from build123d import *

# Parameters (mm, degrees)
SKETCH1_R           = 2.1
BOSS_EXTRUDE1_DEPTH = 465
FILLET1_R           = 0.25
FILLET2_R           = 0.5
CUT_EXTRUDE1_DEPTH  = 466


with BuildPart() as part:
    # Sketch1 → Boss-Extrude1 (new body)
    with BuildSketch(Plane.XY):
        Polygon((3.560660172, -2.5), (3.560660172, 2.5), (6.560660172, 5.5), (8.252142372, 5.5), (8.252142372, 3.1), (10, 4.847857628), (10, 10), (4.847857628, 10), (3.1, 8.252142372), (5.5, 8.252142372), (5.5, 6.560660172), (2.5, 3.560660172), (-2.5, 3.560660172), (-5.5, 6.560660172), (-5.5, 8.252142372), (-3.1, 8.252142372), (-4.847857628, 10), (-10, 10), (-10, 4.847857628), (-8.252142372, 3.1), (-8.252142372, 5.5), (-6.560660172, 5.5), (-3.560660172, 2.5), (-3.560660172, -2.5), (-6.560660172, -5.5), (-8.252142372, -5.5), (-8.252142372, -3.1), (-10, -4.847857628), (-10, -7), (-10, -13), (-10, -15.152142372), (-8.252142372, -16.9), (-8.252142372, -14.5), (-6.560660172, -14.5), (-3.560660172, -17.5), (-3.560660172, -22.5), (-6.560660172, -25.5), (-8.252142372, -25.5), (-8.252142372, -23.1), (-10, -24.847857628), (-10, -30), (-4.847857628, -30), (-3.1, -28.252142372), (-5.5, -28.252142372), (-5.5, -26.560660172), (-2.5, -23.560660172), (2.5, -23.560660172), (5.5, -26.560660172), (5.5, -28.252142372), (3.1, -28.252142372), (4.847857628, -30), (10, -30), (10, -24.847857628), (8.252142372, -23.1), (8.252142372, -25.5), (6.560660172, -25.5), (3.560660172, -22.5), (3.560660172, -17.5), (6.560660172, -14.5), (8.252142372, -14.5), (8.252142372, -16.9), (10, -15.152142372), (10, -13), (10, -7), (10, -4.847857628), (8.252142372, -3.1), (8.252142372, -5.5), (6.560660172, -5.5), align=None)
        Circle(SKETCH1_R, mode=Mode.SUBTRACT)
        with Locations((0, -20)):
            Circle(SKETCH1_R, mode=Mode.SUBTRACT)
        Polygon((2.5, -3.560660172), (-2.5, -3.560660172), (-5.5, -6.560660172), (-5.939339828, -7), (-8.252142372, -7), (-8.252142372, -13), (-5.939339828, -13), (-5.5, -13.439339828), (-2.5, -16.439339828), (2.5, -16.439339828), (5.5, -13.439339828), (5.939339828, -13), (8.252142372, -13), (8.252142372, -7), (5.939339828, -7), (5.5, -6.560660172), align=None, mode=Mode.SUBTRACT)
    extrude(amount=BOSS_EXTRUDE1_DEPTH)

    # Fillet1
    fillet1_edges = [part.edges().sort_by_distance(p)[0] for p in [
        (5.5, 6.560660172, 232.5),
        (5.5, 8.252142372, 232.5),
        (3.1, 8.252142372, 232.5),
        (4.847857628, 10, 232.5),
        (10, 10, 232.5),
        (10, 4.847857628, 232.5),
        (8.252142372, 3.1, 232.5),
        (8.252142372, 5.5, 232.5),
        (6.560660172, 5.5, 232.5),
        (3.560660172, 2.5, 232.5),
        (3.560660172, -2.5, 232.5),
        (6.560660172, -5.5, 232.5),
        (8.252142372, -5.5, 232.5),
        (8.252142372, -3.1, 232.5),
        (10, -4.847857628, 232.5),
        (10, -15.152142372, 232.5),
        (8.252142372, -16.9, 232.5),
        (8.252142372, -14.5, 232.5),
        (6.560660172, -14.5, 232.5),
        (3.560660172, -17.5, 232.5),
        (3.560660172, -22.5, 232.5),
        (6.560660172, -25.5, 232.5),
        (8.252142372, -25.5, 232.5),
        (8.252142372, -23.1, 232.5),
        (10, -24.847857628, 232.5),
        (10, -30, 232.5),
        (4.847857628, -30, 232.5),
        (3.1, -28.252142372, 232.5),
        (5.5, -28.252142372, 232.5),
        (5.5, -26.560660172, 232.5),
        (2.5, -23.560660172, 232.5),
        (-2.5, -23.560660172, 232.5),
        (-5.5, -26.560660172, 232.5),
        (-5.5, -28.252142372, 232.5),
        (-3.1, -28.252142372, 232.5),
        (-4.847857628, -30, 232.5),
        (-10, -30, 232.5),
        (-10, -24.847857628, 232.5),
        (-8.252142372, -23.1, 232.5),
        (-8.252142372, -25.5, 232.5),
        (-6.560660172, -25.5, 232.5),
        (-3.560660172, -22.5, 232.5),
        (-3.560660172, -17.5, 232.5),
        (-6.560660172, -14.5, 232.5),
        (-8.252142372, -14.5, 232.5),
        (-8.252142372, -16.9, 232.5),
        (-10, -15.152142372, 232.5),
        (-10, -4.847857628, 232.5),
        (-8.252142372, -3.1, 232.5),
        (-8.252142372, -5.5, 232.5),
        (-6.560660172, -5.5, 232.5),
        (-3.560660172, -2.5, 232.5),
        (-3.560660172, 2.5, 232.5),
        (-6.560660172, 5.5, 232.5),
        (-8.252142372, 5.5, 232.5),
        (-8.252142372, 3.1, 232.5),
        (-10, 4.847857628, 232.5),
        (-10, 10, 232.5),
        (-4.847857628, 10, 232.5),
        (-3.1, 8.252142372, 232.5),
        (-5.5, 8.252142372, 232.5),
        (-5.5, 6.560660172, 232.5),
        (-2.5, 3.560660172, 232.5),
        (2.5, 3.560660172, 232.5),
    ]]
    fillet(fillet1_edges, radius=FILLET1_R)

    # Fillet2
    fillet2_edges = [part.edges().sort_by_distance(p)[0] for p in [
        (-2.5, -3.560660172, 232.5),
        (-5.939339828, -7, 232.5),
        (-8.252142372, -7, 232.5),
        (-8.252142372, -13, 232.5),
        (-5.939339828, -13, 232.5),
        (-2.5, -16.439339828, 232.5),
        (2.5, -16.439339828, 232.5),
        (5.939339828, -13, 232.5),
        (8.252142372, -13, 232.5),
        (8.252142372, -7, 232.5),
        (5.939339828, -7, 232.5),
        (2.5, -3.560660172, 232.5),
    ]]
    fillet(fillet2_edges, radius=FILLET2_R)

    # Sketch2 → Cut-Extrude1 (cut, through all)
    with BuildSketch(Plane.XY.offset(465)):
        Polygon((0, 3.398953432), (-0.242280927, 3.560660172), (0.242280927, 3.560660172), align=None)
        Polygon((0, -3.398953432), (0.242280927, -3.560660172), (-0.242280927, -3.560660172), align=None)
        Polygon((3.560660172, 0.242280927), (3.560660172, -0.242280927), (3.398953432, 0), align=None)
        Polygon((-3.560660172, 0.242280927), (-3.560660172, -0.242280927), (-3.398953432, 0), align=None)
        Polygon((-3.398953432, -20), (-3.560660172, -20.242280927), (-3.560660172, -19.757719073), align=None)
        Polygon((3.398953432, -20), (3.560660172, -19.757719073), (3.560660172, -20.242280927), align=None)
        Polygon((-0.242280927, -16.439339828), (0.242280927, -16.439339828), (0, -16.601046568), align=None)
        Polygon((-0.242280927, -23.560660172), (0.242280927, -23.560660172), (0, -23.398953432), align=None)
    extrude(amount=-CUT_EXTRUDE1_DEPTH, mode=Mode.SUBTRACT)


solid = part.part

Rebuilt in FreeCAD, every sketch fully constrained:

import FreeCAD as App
import Part
import Sketcher

V = App.Vector
Q = App.Units.Quantity


def edges_at(feature, points):
    """Names of the edges that pass closest to the given points."""
    edges = feature.Shape.Edges
    near = lambda p: min(range(len(edges)), key=lambda i: edges[i].distToShape(Part.Vertex(*p))[0])
    return sorted({f"Edge{near(p) + 1}" for p in points})

doc = App.newDocument("Part")
body = doc.addObject("PartDesign::Body", "Body")

# Sketch on XY plane
sketch1 = body.newObject("Sketcher::SketchObject", "Sketch")
sketch1.AttachmentSupport = (doc.getObject("XY_Plane"), [""])
sketch1.MapMode = "FlatFace"
sketch1.addGeometry([
    Part.LineSegment(V(3.56066, -2.5, 0), V(3.56066, 2.5, 0)),  # 0
    Part.LineSegment(V(3.56066, 2.5, 0), V(6.56066, 5.5, 0)),  # 1
    Part.LineSegment(V(6.56066, 5.5, 0), V(8.252142, 5.5, 0)),  # 2
    Part.LineSegment(V(8.252142, 5.5, 0), V(8.252142, 3.1, 0)),  # 3
    Part.LineSegment(V(8.252142, 3.1, 0), V(10, 4.847858, 0)),  # 4
    Part.LineSegment(V(10, 4.847858, 0), V(10, 10, 0)),  # 5
    Part.LineSegment(V(10, 10, 0), V(4.847858, 10, 0)),  # 6
    Part.LineSegment(V(4.847858, 10, 0), V(3.1, 8.252142, 0)),  # 7
    Part.LineSegment(V(3.1, 8.252142, 0), V(5.5, 8.252142, 0)),  # 8
    Part.LineSegment(V(5.5, 8.252142, 0), V(5.5, 6.56066, 0)),  # 9
    Part.LineSegment(V(5.5, 6.56066, 0), V(2.5, 3.56066, 0)),  # 10
    Part.LineSegment(V(2.5, 3.56066, 0), V(-2.5, 3.56066, 0)),  # 11
    Part.LineSegment(V(-2.5, 3.56066, 0), V(-5.5, 6.56066, 0)),  # 12
    Part.LineSegment(V(-5.5, 6.56066, 0), V(-5.5, 8.252142, 0)),  # 13
    Part.LineSegment(V(-5.5, 8.252142, 0), V(-3.1, 8.252142, 0)),  # 14
    Part.LineSegment(V(-3.1, 8.252142, 0), V(-4.847858, 10, 0)),  # 15
    Part.LineSegment(V(-4.847858, 10, 0), V(-10, 10, 0)),  # 16
    Part.LineSegment(V(-10, 10, 0), V(-10, 4.847858, 0)),  # 17
    Part.LineSegment(V(-10, 4.847858, 0), V(-8.252142, 3.1, 0)),  # 18
    Part.LineSegment(V(-8.252142, 3.1, 0), V(-8.252142, 5.5, 0)),  # 19
    Part.LineSegment(V(-8.252142, 5.5, 0), V(-6.56066, 5.5, 0)),  # 20
    Part.LineSegment(V(-6.56066, 5.5, 0), V(-3.56066, 2.5, 0)),  # 21
    Part.LineSegment(V(-3.56066, 2.5, 0), V(-3.56066, -2.5, 0)),  # 22
    Part.LineSegment(V(-3.56066, -2.5, 0), V(-6.56066, -5.5, 0)),  # 23
    Part.LineSegment(V(-6.56066, -5.5, 0), V(-8.252142, -5.5, 0)),  # 24
    Part.LineSegment(V(-8.252142, -5.5, 0), V(-8.252142, -3.1, 0)),  # 25
    Part.LineSegment(V(-8.252142, -3.1, 0), V(-10, -4.847858, 0)),  # 26
    Part.LineSegment(V(-10, -4.847858, 0), V(-10, -15.152142, 0)),  # 27
    Part.LineSegment(V(-10, -15.152142, 0), V(-8.252142, -16.9, 0)),  # 28
    Part.LineSegment(V(-8.252142, -16.9, 0), V(-8.252142, -14.5, 0)),  # 29
    Part.LineSegment(V(-8.252142, -14.5, 0), V(-6.56066, -14.5, 0)),  # 30
    Part.LineSegment(V(-6.56066, -14.5, 0), V(-3.56066, -17.5, 0)),  # 31
    Part.LineSegment(V(-3.56066, -17.5, 0), V(-3.56066, -22.5, 0)),  # 32
    Part.LineSegment(V(-3.56066, -22.5, 0), V(-6.56066, -25.5, 0)),  # 33
    Part.LineSegment(V(-6.56066, -25.5, 0), V(-8.252142, -25.5, 0)),  # 34
    Part.LineSegment(V(-8.252142, -25.5, 0), V(-8.252142, -23.1, 0)),  # 35
    Part.LineSegment(V(-8.252142, -23.1, 0), V(-10, -24.847858, 0)),  # 36
    Part.LineSegment(V(-10, -24.847858, 0), V(-10, -30, 0)),  # 37
    Part.LineSegment(V(-10, -30, 0), V(-4.847858, -30, 0)),  # 38
    Part.LineSegment(V(-4.847858, -30, 0), V(-3.1, -28.252142, 0)),  # 39
    Part.LineSegment(V(-3.1, -28.252142, 0), V(-5.5, -28.252142, 0)),  # 40
    Part.LineSegment(V(-5.5, -28.252142, 0), V(-5.5, -26.56066, 0)),  # 41
    Part.LineSegment(V(-5.5, -26.56066, 0), V(-2.5, -23.56066, 0)),  # 42
    Part.LineSegment(V(-2.5, -23.56066, 0), V(2.5, -23.56066, 0)),  # 43
    Part.LineSegment(V(2.5, -23.56066, 0), V(5.5, -26.56066, 0)),  # 44
    Part.LineSegment(V(5.5, -26.56066, 0), V(5.5, -28.252142, 0)),  # 45
    Part.LineSegment(V(5.5, -28.252142, 0), V(3.1, -28.252142, 0)),  # 46
    Part.LineSegment(V(3.1, -28.252142, 0), V(4.847858, -30, 0)),  # 47
    Part.LineSegment(V(4.847858, -30, 0), V(10, -30, 0)),  # 48
    Part.LineSegment(V(10, -30, 0), V(10, -24.847858, 0)),  # 49
    Part.LineSegment(V(10, -24.847858, 0), V(8.252142, -23.1, 0)),  # 50
    Part.LineSegment(V(8.252142, -23.1, 0), V(8.252142, -25.5, 0)),  # 51
    Part.LineSegment(V(8.252142, -25.5, 0), V(6.56066, -25.5, 0)),  # 52
    Part.LineSegment(V(6.56066, -25.5, 0), V(3.56066, -22.5, 0)),  # 53
    Part.LineSegment(V(3.56066, -22.5, 0), V(3.56066, -17.5, 0)),  # 54
    Part.LineSegment(V(3.56066, -17.5, 0), V(6.56066, -14.5, 0)),  # 55
    Part.LineSegment(V(6.56066, -14.5, 0), V(8.252142, -14.5, 0)),  # 56
    Part.LineSegment(V(8.252142, -14.5, 0), V(8.252142, -16.9, 0)),  # 57
    Part.LineSegment(V(8.252142, -16.9, 0), V(10, -15.152142, 0)),  # 58
    Part.LineSegment(V(10, -15.152142, 0), V(10, -4.847858, 0)),  # 59
    Part.LineSegment(V(10, -4.847858, 0), V(8.252142, -3.1, 0)),  # 60
    Part.LineSegment(V(8.252142, -3.1, 0), V(8.252142, -5.5, 0)),  # 61
    Part.LineSegment(V(8.252142, -5.5, 0), V(6.56066, -5.5, 0)),  # 62
    Part.LineSegment(V(6.56066, -5.5, 0), V(3.56066, -2.5, 0)),  # 63
    Part.Circle(V(0, -20, 0), V(0, 0, 1), 2.1),  # 64
    Part.LineSegment(V(-2.5, -3.56066, 0), V(2.5, -3.56066, 0)),  # 65
    Part.LineSegment(V(2.5, -3.56066, 0), V(5.93934, -7, 0)),  # 66
    Part.LineSegment(V(5.93934, -7, 0), V(8.252142, -7, 0)),  # 67
    Part.LineSegment(V(8.252142, -7, 0), V(8.252142, -13, 0)),  # 68
    Part.LineSegment(V(8.252142, -13, 0), V(5.93934, -13, 0)),  # 69
    Part.LineSegment(V(5.93934, -13, 0), V(2.5, -16.43934, 0)),  # 70
    Part.LineSegment(V(2.5, -16.43934, 0), V(-2.5, -16.43934, 0)),  # 71
    Part.LineSegment(V(-2.5, -16.43934, 0), V(-5.93934, -13, 0)),  # 72
    Part.LineSegment(V(-5.93934, -13, 0), V(-8.252142, -13, 0)),  # 73
    Part.LineSegment(V(-8.252142, -13, 0), V(-8.252142, -7, 0)),  # 74
    Part.LineSegment(V(-8.252142, -7, 0), V(-5.93934, -7, 0)),  # 75
    Part.LineSegment(V(-5.93934, -7, 0), V(-2.5, -3.56066, 0)),  # 76
    Part.Circle(V(0, 0, 0), V(0, 0, 1), 2.1),  # 77
], False)
sketch1.addConstraint([
    Sketcher.Constraint("Coincident", 0, 2, 1, 1),
    Sketcher.Constraint("Coincident", 1, 2, 2, 1),
    Sketcher.Constraint("Coincident", 2, 2, 3, 1),
    Sketcher.Constraint("Coincident", 3, 2, 4, 1),
    Sketcher.Constraint("Coincident", 4, 2, 5, 1),
    Sketcher.Constraint("Coincident", 5, 2, 6, 1),
    Sketcher.Constraint("Coincident", 6, 2, 7, 1),
    Sketcher.Constraint("Coincident", 7, 2, 8, 1),
    Sketcher.Constraint("Coincident", 8, 2, 9, 1),
    Sketcher.Constraint("Coincident", 9, 2, 10, 1),
    Sketcher.Constraint("Coincident", 10, 2, 11, 1),
    Sketcher.Constraint("Coincident", 11, 2, 12, 1),
    Sketcher.Constraint("Coincident", 12, 2, 13, 1),
    Sketcher.Constraint("Coincident", 13, 2, 14, 1),
    Sketcher.Constraint("Coincident", 14, 2, 15, 1),
    Sketcher.Constraint("Coincident", 15, 2, 16, 1),
    Sketcher.Constraint("Coincident", 16, 2, 17, 1),
    Sketcher.Constraint("Coincident", 17, 2, 18, 1),
    Sketcher.Constraint("Coincident", 18, 2, 19, 1),
    Sketcher.Constraint("Coincident", 19, 2, 20, 1),
    Sketcher.Constraint("Coincident", 20, 2, 21, 1),
    Sketcher.Constraint("Coincident", 21, 2, 22, 1),
    Sketcher.Constraint("Coincident", 22, 2, 23, 1),
    Sketcher.Constraint("Coincident", 23, 2, 24, 1),
    Sketcher.Constraint("Coincident", 24, 2, 25, 1),
    Sketcher.Constraint("Coincident", 25, 2, 26, 1),
    Sketcher.Constraint("Coincident", 26, 2, 27, 1),
    Sketcher.Constraint("Coincident", 27, 2, 28, 1),
    Sketcher.Constraint("Coincident", 28, 2, 29, 1),
    Sketcher.Constraint("Coincident", 29, 2, 30, 1),
    Sketcher.Constraint("Coincident", 30, 2, 31, 1),
    Sketcher.Constraint("Coincident", 31, 2, 32, 1),
    Sketcher.Constraint("Coincident", 32, 2, 33, 1),
    Sketcher.Constraint("Coincident", 33, 2, 34, 1),
    Sketcher.Constraint("Coincident", 34, 2, 35, 1),
    Sketcher.Constraint("Coincident", 35, 2, 36, 1),
    Sketcher.Constraint("Coincident", 36, 2, 37, 1),
    Sketcher.Constraint("Coincident", 37, 2, 38, 1),
    Sketcher.Constraint("Coincident", 38, 2, 39, 1),
    Sketcher.Constraint("Coincident", 39, 2, 40, 1),
    Sketcher.Constraint("Coincident", 40, 2, 41, 1),
    Sketcher.Constraint("Coincident", 41, 2, 42, 1),
    Sketcher.Constraint("Coincident", 42, 2, 43, 1),
    Sketcher.Constraint("Coincident", 43, 2, 44, 1),
    Sketcher.Constraint("Coincident", 44, 2, 45, 1),
    Sketcher.Constraint("Coincident", 45, 2, 46, 1),
    Sketcher.Constraint("Coincident", 46, 2, 47, 1),
    Sketcher.Constraint("Coincident", 47, 2, 48, 1),
    Sketcher.Constraint("Coincident", 48, 2, 49, 1),
    Sketcher.Constraint("Coincident", 49, 2, 50, 1),
    Sketcher.Constraint("Coincident", 50, 2, 51, 1),
    Sketcher.Constraint("Coincident", 51, 2, 52, 1),
    Sketcher.Constraint("Coincident", 52, 2, 53, 1),
    Sketcher.Constraint("Coincident", 53, 2, 54, 1),
    Sketcher.Constraint("Coincident", 54, 2, 55, 1),
    Sketcher.Constraint("Coincident", 55, 2, 56, 1),
    Sketcher.Constraint("Coincident", 56, 2, 57, 1),
    Sketcher.Constraint("Coincident", 57, 2, 58, 1),
    Sketcher.Constraint("Coincident", 58, 2, 59, 1),
    Sketcher.Constraint("Coincident", 59, 2, 60, 1),
    Sketcher.Constraint("Coincident", 60, 2, 61, 1),
    Sketcher.Constraint("Coincident", 61, 2, 62, 1),
    Sketcher.Constraint("Coincident", 62, 2, 63, 1),
    Sketcher.Constraint("Coincident", 63, 2, 0, 1),
    Sketcher.Constraint("Coincident", 65, 2, 66, 1),
    Sketcher.Constraint("Coincident", 66, 2, 67, 1),
    Sketcher.Constraint("Coincident", 67, 2, 68, 1),
    Sketcher.Constraint("Coincident", 68, 2, 69, 1),
    Sketcher.Constraint("Coincident", 69, 2, 70, 1),
    Sketcher.Constraint("Coincident", 70, 2, 71, 1),
    Sketcher.Constraint("Coincident", 71, 2, 72, 1),
    Sketcher.Constraint("Coincident", 72, 2, 73, 1),
    Sketcher.Constraint("Coincident", 73, 2, 74, 1),
    Sketcher.Constraint("Coincident", 74, 2, 75, 1),
    Sketcher.Constraint("Coincident", 75, 2, 76, 1),
    Sketcher.Constraint("Coincident", 76, 2, 65, 1),
    Sketcher.Constraint("Vertical", 0),
    Sketcher.Constraint("Horizontal", 2),
    Sketcher.Constraint("Vertical", 3),
    Sketcher.Constraint("Vertical", 5),
    Sketcher.Constraint("Horizontal", 6),
    Sketcher.Constraint("Horizontal", 8),
    Sketcher.Constraint("Vertical", 9),
    Sketcher.Constraint("Horizontal", 11),
    Sketcher.Constraint("Vertical", 13),
    Sketcher.Constraint("Horizontal", 14),
    Sketcher.Constraint("Horizontal", 16),
    Sketcher.Constraint("Vertical", 17),
    Sketcher.Constraint("Vertical", 19),
    Sketcher.Constraint("Horizontal", 20),
    Sketcher.Constraint("Vertical", 22),
    Sketcher.Constraint("Horizontal", 24),
    Sketcher.Constraint("Vertical", 25),
    Sketcher.Constraint("Vertical", 27),
    Sketcher.Constraint("Vertical", 29),
    Sketcher.Constraint("Horizontal", 30),
    Sketcher.Constraint("Vertical", 32),
    Sketcher.Constraint("Horizontal", 34),
    Sketcher.Constraint("Vertical", 35),
    Sketcher.Constraint("Vertical", 37),
    Sketcher.Constraint("Horizontal", 38),
    Sketcher.Constraint("Horizontal", 40),
    Sketcher.Constraint("Vertical", 41),
    Sketcher.Constraint("Horizontal", 43),
    Sketcher.Constraint("Vertical", 45),
    Sketcher.Constraint("Horizontal", 46),
    Sketcher.Constraint("Horizontal", 48),
    Sketcher.Constraint("Vertical", 49),
    Sketcher.Constraint("Vertical", 51),
    Sketcher.Constraint("Horizontal", 52),
    Sketcher.Constraint("Vertical", 54),
    Sketcher.Constraint("Horizontal", 56),
    Sketcher.Constraint("Vertical", 57),
    Sketcher.Constraint("Vertical", 59),
    Sketcher.Constraint("Vertical", 61),
    Sketcher.Constraint("Horizontal", 62),
    Sketcher.Constraint("Horizontal", 65),
    Sketcher.Constraint("Horizontal", 67),
    Sketcher.Constraint("Vertical", 68),
    Sketcher.Constraint("Horizontal", 69),
    Sketcher.Constraint("Horizontal", 71),
    Sketcher.Constraint("Horizontal", 73),
    Sketcher.Constraint("Vertical", 74),
    Sketcher.Constraint("Horizontal", 75),
    Sketcher.Constraint("Coincident", 77, 3, -1, 1),
    Sketcher.Constraint("Equal", 64, 77),
    Sketcher.Constraint("Symmetric", 0, 2, 22, 2, -1, 1),
    Sketcher.Constraint("Symmetric", 1, 2, 23, 2, -1, 1),
    Sketcher.Constraint("Symmetric", 3, 2, 25, 2, -1, 1),
    Sketcher.Constraint("Symmetric", 4, 2, 26, 2, -1, 1),
    Sketcher.Constraint("Symmetric", 17, 2, 59, 2, -1, 1),
    Sketcher.Constraint("Symmetric", 18, 2, 60, 2, -1, 1),
    Sketcher.Constraint("Symmetric", 20, 2, 62, 2, -1, 1),
    Sketcher.Constraint("Symmetric", 11, 2, 65, 2, -1, 1),
    Sketcher.Constraint("Symmetric", 9, 2, 12, 2, -2),
    Sketcher.Constraint("Symmetric", 7, 2, 14, 2, -2),
    Sketcher.Constraint("Symmetric", 6, 2, 15, 2, -2),
    Sketcher.Constraint("Symmetric", 4, 2, 17, 2, -2),
    Sketcher.Constraint("Symmetric", 3, 2, 18, 2, -2),
    Sketcher.Constraint("Symmetric", 1, 2, 20, 2, -2),
    Sketcher.Constraint("Symmetric", 41, 2, 44, 2, -2),
    Sketcher.Constraint("Symmetric", 39, 2, 46, 2, -2),
    Sketcher.Constraint("Symmetric", 38, 2, 47, 2, -2),
    Sketcher.Constraint("Symmetric", 36, 2, 49, 2, -2),
    Sketcher.Constraint("Symmetric", 35, 2, 50, 2, -2),
    Sketcher.Constraint("Symmetric", 33, 2, 52, 2, -2),
    Sketcher.Constraint("Symmetric", 32, 2, 53, 2, -2),
    Sketcher.Constraint("Symmetric", 30, 2, 55, 2, -2),
    Sketcher.Constraint("Symmetric", 28, 2, 57, 2, -2),
    Sketcher.Constraint("Symmetric", 69, 2, 72, 2, -2),
    Sketcher.Constraint("Symmetric", 67, 2, 74, 2, -2),
    Sketcher.Constraint("PointOnObject", 64, 3, -2),
    Sketcher.Constraint("Parallel", 1, 4),
    Sketcher.Constraint("Parallel", 4, 7),
    Sketcher.Constraint("Parallel", 7, 10),
    Sketcher.Constraint("Perpendicular", 10, 12),
    Sketcher.Constraint("Parallel", 12, 15),
    Sketcher.Constraint("Parallel", 18, 21),
    Sketcher.Constraint("Perpendicular", 26, 28),
    Sketcher.Constraint("Parallel", 28, 31),
    Sketcher.Constraint("Perpendicular", 31, 33),
    Sketcher.Constraint("Parallel", 33, 36),
    Sketcher.Constraint("Parallel", 36, 39),
    Sketcher.Constraint("Parallel", 39, 42),
    Sketcher.Constraint("Perpendicular", 42, 44),
    Sketcher.Constraint("Perpendicular", 53, 55),
    Sketcher.Constraint("Parallel", 55, 58),
    Sketcher.Constraint("Parallel", 60, 63),
    Sketcher.Constraint("Parallel", 63, 66),
    Sketcher.Constraint("Perpendicular", 66, 70),
    Sketcher.Constraint("Perpendicular", 70, 72),
    Sketcher.Constraint("Perpendicular", 72, 76),
    Sketcher.Constraint("Vertical", 25, 2, 28, 2),
    Sketcher.Constraint("Vertical", 23, 2, 30, 2),
    Sketcher.Constraint("Vertical", 22, 2, 31, 2),
    Sketcher.Constraint("Vertical", 30, 2, 33, 2),
    Sketcher.Constraint("Vertical", 29, 2, 34, 2),
    Sketcher.Constraint("Vertical", 27, 2, 36, 2),
    Sketcher.Constraint("Vertical", 15, 2, 38, 2),
    Sketcher.Constraint("Vertical", 14, 2, 39, 2),
    Sketcher.Constraint("Vertical", 13, 2, 40, 2),
    Sketcher.Constraint("Vertical", 11, 2, 42, 2),
    Sketcher.Constraint("Vertical", 61, 2, 67, 2),
    Sketcher.Constraint("Vertical", 66, 2, 69, 2),
    Sketcher.Constraint("Vertical", 65, 2, 70, 2),
    Sketcher.Constraint("Vertical", 72, 2, 75, 2),
    Sketcher.Constraint("Equal", 71, 0),
    Sketcher.Constraint("Equal", 46, 3),
    Sketcher.Constraint("Equal", 48, 5),
    Sketcher.Constraint("Equal", 62, 9),
    Sketcher.Constraint("Equal", 25, 29),
    Sketcher.Constraint("Equal", 22, 32),
    Sketcher.Constraint("Equal", 29, 35),
    Sketcher.Constraint("Equal", 17, 37),
    Sketcher.Constraint("Equal", 13, 41),
    Sketcher.Constraint("Equal", 4, 7),
    Sketcher.Constraint("Equal", 1, 10),
    Sketcher.Constraint("Diameter", 64, Q("4.2 mm")),
    Sketcher.Constraint("DistanceX", 11, 2, 11, 1, Q("5 mm")),
    Sketcher.Constraint("DistanceY", 68, 2, 68, 1, Q("6 mm")),
    Sketcher.Constraint("DistanceX", 8, 1, 8, 2, Q("2.4 mm")),
    Sketcher.Constraint("DistanceY", 64, 3, -1, 1, Q("20 mm")),
    Sketcher.Constraint("DistanceX", -1, 1, 4, 2, Q("10 mm")),
    Sketcher.Constraint("DistanceY", 37, 2, -1, 1, Q("30 mm")),
    Sketcher.Constraint("DistanceY", 66, 2, -1, 1, Q("7 mm")),
    Sketcher.Constraint("DistanceY", -1, 1, 1, 2, Q("5.5 mm")),
    Sketcher.Constraint("Distance", 66, Q("4.863961 mm")),
    Sketcher.Constraint("DistanceX", 2, 1, 2, 2, Q("1.691482 mm")),
])
pad1 = body.newObject("PartDesign::Pad", "Pad")
pad1.Profile = sketch1
pad1.Length = 465
doc.recompute()

fillet = body.newObject("PartDesign::Fillet", "Fillet")
fillet.Base = (pad1, edges_at(pad1, [
    (5.5, 6.561, 232.5),
    (5.5, 8.252, 232.5),
    (3.1, 8.252, 232.5),
    (4.848, 10, 232.5),
    (10, 10, 232.5),
    (10, 4.848, 232.5),
    (8.252, 3.1, 232.5),
    (8.252, 5.5, 232.5),
    (6.561, 5.5, 232.5),
    (3.561, 2.5, 232.5),
    (3.561, -2.5, 232.5),
    (6.561, -5.5, 232.5),
    (8.252, -5.5, 232.5),
    (8.252, -3.1, 232.5),
    (10, -4.848, 232.5),
    (10, -15.152, 232.5),
    (8.252, -16.9, 232.5),
    (8.252, -14.5, 232.5),
    (6.561, -14.5, 232.5),
    (3.561, -17.5, 232.5),
    (3.561, -22.5, 232.5),
    (6.561, -25.5, 232.5),
    (8.252, -25.5, 232.5),
    (8.252, -23.1, 232.5),
    (10, -24.848, 232.5),
    (10, -30, 232.5),
    (4.848, -30, 232.5),
    (3.1, -28.252, 232.5),
    (5.5, -28.252, 232.5),
    (5.5, -26.561, 232.5),
    (2.5, -23.561, 232.5),
    (-2.5, -23.561, 232.5),
    (-5.5, -26.561, 232.5),
    (-5.5, -28.252, 232.5),
    (-3.1, -28.252, 232.5),
    (-4.848, -30, 232.5),
    (-10, -30, 232.5),
    (-10, -24.848, 232.5),
    (-8.252, -23.1, 232.5),
    (-8.252, -25.5, 232.5),
    (-6.561, -25.5, 232.5),
    (-3.561, -22.5, 232.5),
    (-3.561, -17.5, 232.5),
    (-6.561, -14.5, 232.5),
    (-8.252, -14.5, 232.5),
    (-8.252, -16.9, 232.5),
    (-10, -15.152, 232.5),
    (-10, -4.848, 232.5),
    (-8.252, -3.1, 232.5),
    (-8.252, -5.5, 232.5),
    (-6.561, -5.5, 232.5),
    (-3.561, -2.5, 232.5),
    (-3.561, 2.5, 232.5),
    (-6.561, 5.5, 232.5),
    (-8.252, 5.5, 232.5),
    (-8.252, 3.1, 232.5),
    (-10, 4.848, 232.5),
    (-10, 10, 232.5),
    (-4.848, 10, 232.5),
    (-3.1, 8.252, 232.5),
    (-5.5, 8.252, 232.5),
    (-5.5, 6.561, 232.5),
    (-2.5, 3.561, 232.5),
    (2.5, 3.561, 232.5),
]))
fillet.Radius = 0.25
doc.recompute()

fillet2 = body.newObject("PartDesign::Fillet", "Fillet001")
fillet2.Base = (fillet, edges_at(fillet, [
    (-2.5, -3.561, 232.5),
    (-5.939, -7, 232.5),
    (-8.252, -7, 232.5),
    (-8.252, -13, 232.5),
    (-5.939, -13, 232.5),
    (-2.5, -16.439, 232.5),
    (2.5, -16.439, 232.5),
    (5.939, -13, 232.5),
    (8.252, -13, 232.5),
    (8.252, -7, 232.5),
    (5.939, -7, 232.5),
    (2.5, -3.561, 232.5),
]))
fillet2.Radius = 0.5

# Sketch on XY plane
sketch2 = body.newObject("Sketcher::SketchObject", "Sketch001")
sketch2.AttachmentSupport = (doc.getObject("XY_Plane"), [""])
sketch2.MapMode = "FlatFace"
sketch2.AttachmentOffset = App.Placement(V(0, 0, 465), App.Rotation())
sketch2.addGeometry([
    Part.LineSegment(V(-0.242281, 3.56066, 0), V(0, 3.398953, 0)),  # 0
    Part.LineSegment(V(0, 3.398953, 0), V(0.242281, 3.56066, 0)),  # 1
    Part.LineSegment(V(0.242281, 3.56066, 0), V(-0.242281, 3.56066, 0)),  # 2
    Part.LineSegment(V(0.242281, -3.56066, 0), V(0, -3.398953, 0)),  # 3
    Part.LineSegment(V(0, -3.398953, 0), V(-0.242281, -3.56066, 0)),  # 4
    Part.LineSegment(V(-0.242281, -3.56066, 0), V(0.242281, -3.56066, 0)),  # 5
    Part.LineSegment(V(3.56066, -0.242281, 0), V(3.56066, 0.242281, 0)),  # 6
    Part.LineSegment(V(3.56066, 0.242281, 0), V(3.398953, 0, 0)),  # 7
    Part.LineSegment(V(3.398953, 0, 0), V(3.56066, -0.242281, 0)),  # 8
    Part.LineSegment(V(-3.56066, 0.242281, 0), V(-3.56066, -0.242281, 0)),  # 9
    Part.LineSegment(V(-3.56066, -0.242281, 0), V(-3.398953, 0, 0)),  # 10
    Part.LineSegment(V(-3.398953, 0, 0), V(-3.56066, 0.242281, 0)),  # 11
    Part.LineSegment(V(-3.56066, -20.242281, 0), V(-3.398953, -20, 0)),  # 12
    Part.LineSegment(V(-3.398953, -20, 0), V(-3.56066, -19.757719, 0)),  # 13
    Part.LineSegment(V(-3.56066, -19.757719, 0), V(-3.56066, -20.242281, 0)),  # 14
    Part.LineSegment(V(3.56066, -19.757719, 0), V(3.398953, -20, 0)),  # 15
    Part.LineSegment(V(3.398953, -20, 0), V(3.56066, -20.242281, 0)),  # 16
    Part.LineSegment(V(3.56066, -20.242281, 0), V(3.56066, -19.757719, 0)),  # 17
    Part.LineSegment(V(0.242281, -16.43934, 0), V(-0.242281, -16.43934, 0)),  # 18
    Part.LineSegment(V(-0.242281, -16.43934, 0), V(0, -16.601047, 0)),  # 19
    Part.LineSegment(V(0, -16.601047, 0), V(0.242281, -16.43934, 0)),  # 20
    Part.LineSegment(V(-0.242281, -23.56066, 0), V(0.242281, -23.56066, 0)),  # 21
    Part.LineSegment(V(0.242281, -23.56066, 0), V(0, -23.398953, 0)),  # 22
    Part.LineSegment(V(0, -23.398953, 0), V(-0.242281, -23.56066, 0)),  # 23
], False)
sketch2.addConstraint([
    Sketcher.Constraint("Coincident", 0, 2, 1, 1),
    Sketcher.Constraint("Coincident", 1, 2, 2, 1),
    Sketcher.Constraint("Coincident", 2, 2, 0, 1),
    Sketcher.Constraint("Coincident", 3, 2, 4, 1),
    Sketcher.Constraint("Coincident", 4, 2, 5, 1),
    Sketcher.Constraint("Coincident", 5, 2, 3, 1),
    Sketcher.Constraint("Coincident", 6, 2, 7, 1),
    Sketcher.Constraint("Coincident", 7, 2, 8, 1),
    Sketcher.Constraint("Coincident", 8, 2, 6, 1),
    Sketcher.Constraint("Coincident", 9, 2, 10, 1),
    Sketcher.Constraint("Coincident", 10, 2, 11, 1),
    Sketcher.Constraint("Coincident", 11, 2, 9, 1),
    Sketcher.Constraint("Coincident", 12, 2, 13, 1),
    Sketcher.Constraint("Coincident", 13, 2, 14, 1),
    Sketcher.Constraint("Coincident", 14, 2, 12, 1),
    Sketcher.Constraint("Coincident", 15, 2, 16, 1),
    Sketcher.Constraint("Coincident", 16, 2, 17, 1),
    Sketcher.Constraint("Coincident", 17, 2, 15, 1),
    Sketcher.Constraint("Coincident", 18, 2, 19, 1),
    Sketcher.Constraint("Coincident", 19, 2, 20, 1),
    Sketcher.Constraint("Coincident", 20, 2, 18, 1),
    Sketcher.Constraint("Coincident", 21, 2, 22, 1),
    Sketcher.Constraint("Coincident", 22, 2, 23, 1),
    Sketcher.Constraint("Coincident", 23, 2, 21, 1),
    Sketcher.Constraint("Horizontal", 2),
    Sketcher.Constraint("Horizontal", 5),
    Sketcher.Constraint("Vertical", 6),
    Sketcher.Constraint("Vertical", 9),
    Sketcher.Constraint("Vertical", 14),
    Sketcher.Constraint("Vertical", 17),
    Sketcher.Constraint("Horizontal", 18),
    Sketcher.Constraint("Horizontal", 21),
    Sketcher.Constraint("Symmetric", 0, 2, 3, 2, -1, 1),
    Sketcher.Constraint("Symmetric", 1, 2, 4, 2, -1, 1),
    Sketcher.Constraint("Symmetric", 6, 2, 9, 2, -1, 1),
    Sketcher.Constraint("Symmetric", 7, 2, 10, 2, -1, 1),
    Sketcher.Constraint("Symmetric", 12, 2, 15, 2, -2),
    Sketcher.Constraint("Symmetric", 14, 2, 16, 2, -2),
    Sketcher.Constraint("PointOnObject", 0, 2, -2),
    Sketcher.Constraint("PointOnObject", 7, 2, -1),
    Sketcher.Constraint("PointOnObject", 19, 2, -2),
    Sketcher.Constraint("PointOnObject", 22, 2, -2),
    Sketcher.Constraint("Parallel", 0, 3),
    Sketcher.Constraint("Perpendicular", 3, 7),
    Sketcher.Constraint("Perpendicular", 4, 8),
    Sketcher.Constraint("Parallel", 8, 11),
    Sketcher.Constraint("Parallel", 10, 12),
    Sketcher.Constraint("Parallel", 11, 13),
    Sketcher.Constraint("Parallel", 12, 15),
    Sketcher.Constraint("Parallel", 13, 16),
    Sketcher.Constraint("Perpendicular", 15, 19),
    Sketcher.Constraint("Perpendicular", 16, 20),
    Sketcher.Constraint("Parallel", 19, 22),
    Sketcher.Constraint("Parallel", 20, 23),
    Sketcher.Constraint("Vertical", 10, 2, 12, 2),
    Sketcher.Constraint("Vertical", 11, 2, 13, 2),
    Sketcher.Constraint("Vertical", 4, 2, 18, 2),
    Sketcher.Constraint("Vertical", 20, 2, 21, 2),
    Sketcher.Constraint("Equal", 21, 6),
    Sketcher.Constraint("DistanceY", 12, 2, -1, 1, Q("20 mm")),
    Sketcher.Constraint("DistanceX", 2, 2, 2, 1, Q("0.484562 mm")),
    Sketcher.Constraint("Distance", 0, Q("0.291289 mm")),
    Sketcher.Constraint("DistanceY", -1, 1, 1, 2, Q("3.56066 mm")),
    Sketcher.Constraint("DistanceX", -1, 1, 6, 2, Q("3.56066 mm")),
    Sketcher.Constraint("DistanceY", 18, 2, -1, 1, Q("16.43934 mm")),
    Sketcher.Constraint("DistanceY", 21, 2, -1, 1, Q("23.56066 mm")),
])
pocket1 = body.newObject("PartDesign::Pocket", "Pocket")
pocket1.Profile = sketch2
pocket1.Type = "ThroughAll"

doc.recompute()
